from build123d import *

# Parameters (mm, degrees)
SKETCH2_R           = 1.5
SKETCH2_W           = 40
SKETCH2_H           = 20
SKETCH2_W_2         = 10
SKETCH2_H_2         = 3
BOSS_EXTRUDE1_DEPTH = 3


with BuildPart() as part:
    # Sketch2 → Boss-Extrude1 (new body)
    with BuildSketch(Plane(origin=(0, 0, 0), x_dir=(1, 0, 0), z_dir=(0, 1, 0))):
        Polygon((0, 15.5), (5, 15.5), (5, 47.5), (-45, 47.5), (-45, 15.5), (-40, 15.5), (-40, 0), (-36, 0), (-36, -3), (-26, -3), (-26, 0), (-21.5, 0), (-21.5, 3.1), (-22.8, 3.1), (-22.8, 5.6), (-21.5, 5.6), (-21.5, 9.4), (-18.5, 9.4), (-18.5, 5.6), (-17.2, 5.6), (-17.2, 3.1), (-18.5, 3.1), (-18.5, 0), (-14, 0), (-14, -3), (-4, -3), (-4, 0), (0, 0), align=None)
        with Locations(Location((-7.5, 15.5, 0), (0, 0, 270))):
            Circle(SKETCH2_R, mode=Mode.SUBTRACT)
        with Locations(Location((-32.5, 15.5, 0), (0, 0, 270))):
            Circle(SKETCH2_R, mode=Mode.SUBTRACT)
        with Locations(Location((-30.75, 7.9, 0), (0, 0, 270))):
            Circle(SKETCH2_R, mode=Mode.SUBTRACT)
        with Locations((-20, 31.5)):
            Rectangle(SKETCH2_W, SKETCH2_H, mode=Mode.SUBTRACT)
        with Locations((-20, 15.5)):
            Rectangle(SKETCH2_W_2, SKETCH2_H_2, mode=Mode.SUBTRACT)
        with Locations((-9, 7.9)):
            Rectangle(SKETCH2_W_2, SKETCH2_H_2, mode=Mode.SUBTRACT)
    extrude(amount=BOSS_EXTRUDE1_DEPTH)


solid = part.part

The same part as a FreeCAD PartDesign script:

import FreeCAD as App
import Part
import Sketcher
from FreeCAD import Vector
Q = App.Units.Quantity


def add_polygon(sketch, points):
    """Adds a closed chain of lines whose ends are joined by coincident constraints."""
    first, n = sketch.GeometryCount, len(points)
    for a, b in zip(points, points[1:] + points[:1]):
        sketch.addGeometry(Part.LineSegment(App.Vector(*a, 0), App.Vector(*b, 0)), False)
    for i in range(n):
        sketch.addConstraint(Sketcher.Constraint("Coincident", first + i, 2, first + (i + 1) % n, 1))

doc = App.newDocument("Part")
body = doc.addObject("PartDesign::Body", "Body")

sketch1 = body.newObject("Sketcher::SketchObject", "Sketch")
sketch1.AttachmentSupport = (doc.getObject("XZ_Plane"), [""])
sketch1.MapMode = "FlatFace"
add_polygon(sketch1, [(0, -15.5), (5, -15.5), (5, -47.5), (-45, -47.5), (-45, -15.5), (-40, -15.5), (-40, 0), (-36, 0), (-36, 3), (-26, 3), (-26, 0), (-21.5, 0), (-21.5, -3.1), (-22.8, -3.1), (-22.8, -5.6), (-21.5, -5.6), (-21.5, -9.4), (-18.5, -9.4), (-18.5, -5.6), (-17.2, -5.6), (-17.2, -3.1), (-18.5, -3.1), (-18.5, 0), (-14, 0), (-14, 3), (-4, 3), (-4, 0), (0, 0)])
sketch1.addGeometry(Part.Circle(Vector(-30.8, -7.9, 0), Vector(0, 0, 1), 1.5), False)
sketch1.addGeometry(Part.Circle(Vector(-32.5, -15.5, 0), Vector(0, 0, 1), 1.5), False)
add_polygon(sketch1, [(-4, -6.4), (-14, -6.4), (-14, -9.4), (-4, -9.4)])
add_polygon(sketch1, [(-15, -14), (-25, -14), (-25, -17), (-15, -17)])
sketch1.addGeometry(Part.Circle(Vector(-7.5, -15.5, 0), Vector(0, 0, 1), 1.5), False)
add_polygon(sketch1, [(0, -21.5), (-40, -21.5), (-40, -41.5), (0, -41.5)])
sketch1.addConstraint([
    Sketcher.Constraint("Horizontal", 0),
    Sketcher.Constraint("Vertical", 1),
    Sketcher.Constraint("Horizontal", 2),
    Sketcher.Constraint("Vertical", 3),
    Sketcher.Constraint("Horizontal", 4),
    Sketcher.Constraint("Vertical", 5),
    Sketcher.Constraint("Horizontal", 6),
    Sketcher.Constraint("Vertical", 7),
    Sketcher.Constraint("Horizontal", 8),
    Sketcher.Constraint("Vertical", 9),
    Sketcher.Constraint("Horizontal", 10),
    Sketcher.Constraint("Vertical", 11),
    Sketcher.Constraint("Horizontal", 12),
    Sketcher.Constraint("Vertical", 13),
    Sketcher.Constraint("Horizontal", 14),
    Sketcher.Constraint("Vertical", 15),
    Sketcher.Constraint("Horizontal", 16),
    Sketcher.Constraint("Vertical", 17),
    Sketcher.Constraint("Horizontal", 18),
    Sketcher.Constraint("Vertical", 19),
    Sketcher.Constraint("Horizontal", 20),
    Sketcher.Constraint("Vertical", 21),
    Sketcher.Constraint("Horizontal", 22),
    Sketcher.Constraint("Vertical", 23),
    Sketcher.Constraint("Horizontal", 24),
    Sketcher.Constraint("Vertical", 25),
    Sketcher.Constraint("Horizontal", 26),
    Sketcher.Constraint("Vertical", 27),
    Sketcher.Constraint("Horizontal", 30),
    Sketcher.Constraint("Vertical", 31),
    Sketcher.Constraint("Horizontal", 32),
    Sketcher.Constraint("Vertical", 33),
    Sketcher.Constraint("Horizontal", 34),
    Sketcher.Constraint("Vertical", 35),
    Sketcher.Constraint("Horizontal", 36),
    Sketcher.Constraint("Vertical", 37),
    Sketcher.Constraint("Horizontal", 39),
    Sketcher.Constraint("Vertical", 40),
    Sketcher.Constraint("Horizontal", 41),
    Sketcher.Constraint("Vertical", 42),
    Sketcher.Constraint("Coincident", 26, 2, -1, 1),
    Sketcher.Constraint("Equal", 28, 29),
    Sketcher.Constraint("Equal", 29, 38),
    Sketcher.Constraint("PointOnObject", 5, 2, -1),
    Sketcher.Constraint("PointOnObject", 9, 2, -1),
    Sketcher.Constraint("PointOnObject", 21, 2, -1),
    Sketcher.Constraint("PointOnObject", 41, 2, -2),
    Sketcher.Constraint("Horizontal", 29, 3, 38, 3),
    Sketcher.Constraint("Horizontal", 38, 3, 0, 2),
    Sketcher.Constraint("Horizontal", 0, 2, 3, 2),
    Sketcher.Constraint("Horizontal", 14, 2, 17, 2),
    Sketcher.Constraint("Horizontal", 12, 2, 19, 2),
    Sketcher.Constraint("Horizontal", 8, 2, 23, 2),
    Sketcher.Constraint("Horizontal", 16, 2, 31, 2),
    Sketcher.Constraint("Vertical", 11, 2, 14, 2),
    Sketcher.Constraint("Vertical", 17, 2, 20, 2),
    Sketcher.Constraint("Vertical", 23, 2, 30, 2),
    Sketcher.Constraint("Vertical", 25, 2, 32, 2),
    Sketcher.Constraint("Vertical", 5, 2, 39, 2),
    Sketcher.Constraint("Equal", 0, 4),
    Sketcher.Constraint("Equal", 14, 18),
    Sketcher.Constraint("Equal", 10, 22),
    Sketcher.Constraint("Equal", 8, 24),
    Sketcher.Constraint("Equal", 6, 26),
    Sketcher.Constraint("Equal", 32, 34),
    Sketcher.Constraint("Equal", 16, 7),
    Sketcher.Constraint("Equal", 25, 31),
    Sketcher.Constraint("Equal", 33, 35),
    Sketcher.Constraint("Diameter", 28, Q("3 mm")),
    Sketcher.Constraint("DistanceX", 0, 1, 0, 2, Q("5 mm")),
    Sketcher.Constraint("DistanceX", 2, 2, 2, 1, Q("50 mm")),
    Sketcher.Constraint("DistanceX", 6, 1, 6, 2, Q("4 mm")),
    Sketcher.Constraint("DistanceX", 8, 1, 8, 2, Q("10 mm")),
    Sketcher.Constraint("DistanceX", 16, 1, 16, 2, Q("3 mm")),
    Sketcher.Constraint("DistanceY", 1, 2, 1, 1, Q("32 mm")),
    Sketcher.Constraint("DistanceY", 40, 2, 40, 1, Q("20 mm")),
    Sketcher.Constraint("DistanceX", 12, 2, 12, 1, Q("1.3 mm")),
    Sketcher.Constraint("DistanceY", 5, 1, 5, 2, Q("15.5 mm")),
    Sketcher.Constraint("DistanceY", 11, 2, 11, 1, Q("3.1 mm")),
    Sketcher.Constraint("DistanceY", 13, 2, 13, 1, Q("2.5 mm")),
    Sketcher.Constraint("DistanceY", 15, 2, 15, 1, Q("3.8 mm")),
    Sketcher.Constraint("DistanceX", 34, 2, -1, 1, Q("25 mm")),
    Sketcher.Constraint("DistanceY", 34, 2, -1, 1, Q("14 mm")),
    Sketcher.Constraint("DistanceX", 29, 3, 38, 3, Q("25 mm")),
    Sketcher.Constraint("DistanceY", 39, 2, 4, 2, Q("6 mm")),
    Sketcher.Constraint("DistanceY", 28, 3, -1, 1, Q("7.9 mm")),
    Sketcher.Constraint("DistanceX", 29, 3, -1, 1, Q("32.5 mm")),
    Sketcher.Constraint("DistanceX", 28, 3, -1, 1, Q("30.75 mm")),
])
pad1 = body.newObject("PartDesign::Pad", "Pad")
pad1.Profile = sketch1
pad1.Length = 3
pad1.Reversed = True

doc.recompute()
